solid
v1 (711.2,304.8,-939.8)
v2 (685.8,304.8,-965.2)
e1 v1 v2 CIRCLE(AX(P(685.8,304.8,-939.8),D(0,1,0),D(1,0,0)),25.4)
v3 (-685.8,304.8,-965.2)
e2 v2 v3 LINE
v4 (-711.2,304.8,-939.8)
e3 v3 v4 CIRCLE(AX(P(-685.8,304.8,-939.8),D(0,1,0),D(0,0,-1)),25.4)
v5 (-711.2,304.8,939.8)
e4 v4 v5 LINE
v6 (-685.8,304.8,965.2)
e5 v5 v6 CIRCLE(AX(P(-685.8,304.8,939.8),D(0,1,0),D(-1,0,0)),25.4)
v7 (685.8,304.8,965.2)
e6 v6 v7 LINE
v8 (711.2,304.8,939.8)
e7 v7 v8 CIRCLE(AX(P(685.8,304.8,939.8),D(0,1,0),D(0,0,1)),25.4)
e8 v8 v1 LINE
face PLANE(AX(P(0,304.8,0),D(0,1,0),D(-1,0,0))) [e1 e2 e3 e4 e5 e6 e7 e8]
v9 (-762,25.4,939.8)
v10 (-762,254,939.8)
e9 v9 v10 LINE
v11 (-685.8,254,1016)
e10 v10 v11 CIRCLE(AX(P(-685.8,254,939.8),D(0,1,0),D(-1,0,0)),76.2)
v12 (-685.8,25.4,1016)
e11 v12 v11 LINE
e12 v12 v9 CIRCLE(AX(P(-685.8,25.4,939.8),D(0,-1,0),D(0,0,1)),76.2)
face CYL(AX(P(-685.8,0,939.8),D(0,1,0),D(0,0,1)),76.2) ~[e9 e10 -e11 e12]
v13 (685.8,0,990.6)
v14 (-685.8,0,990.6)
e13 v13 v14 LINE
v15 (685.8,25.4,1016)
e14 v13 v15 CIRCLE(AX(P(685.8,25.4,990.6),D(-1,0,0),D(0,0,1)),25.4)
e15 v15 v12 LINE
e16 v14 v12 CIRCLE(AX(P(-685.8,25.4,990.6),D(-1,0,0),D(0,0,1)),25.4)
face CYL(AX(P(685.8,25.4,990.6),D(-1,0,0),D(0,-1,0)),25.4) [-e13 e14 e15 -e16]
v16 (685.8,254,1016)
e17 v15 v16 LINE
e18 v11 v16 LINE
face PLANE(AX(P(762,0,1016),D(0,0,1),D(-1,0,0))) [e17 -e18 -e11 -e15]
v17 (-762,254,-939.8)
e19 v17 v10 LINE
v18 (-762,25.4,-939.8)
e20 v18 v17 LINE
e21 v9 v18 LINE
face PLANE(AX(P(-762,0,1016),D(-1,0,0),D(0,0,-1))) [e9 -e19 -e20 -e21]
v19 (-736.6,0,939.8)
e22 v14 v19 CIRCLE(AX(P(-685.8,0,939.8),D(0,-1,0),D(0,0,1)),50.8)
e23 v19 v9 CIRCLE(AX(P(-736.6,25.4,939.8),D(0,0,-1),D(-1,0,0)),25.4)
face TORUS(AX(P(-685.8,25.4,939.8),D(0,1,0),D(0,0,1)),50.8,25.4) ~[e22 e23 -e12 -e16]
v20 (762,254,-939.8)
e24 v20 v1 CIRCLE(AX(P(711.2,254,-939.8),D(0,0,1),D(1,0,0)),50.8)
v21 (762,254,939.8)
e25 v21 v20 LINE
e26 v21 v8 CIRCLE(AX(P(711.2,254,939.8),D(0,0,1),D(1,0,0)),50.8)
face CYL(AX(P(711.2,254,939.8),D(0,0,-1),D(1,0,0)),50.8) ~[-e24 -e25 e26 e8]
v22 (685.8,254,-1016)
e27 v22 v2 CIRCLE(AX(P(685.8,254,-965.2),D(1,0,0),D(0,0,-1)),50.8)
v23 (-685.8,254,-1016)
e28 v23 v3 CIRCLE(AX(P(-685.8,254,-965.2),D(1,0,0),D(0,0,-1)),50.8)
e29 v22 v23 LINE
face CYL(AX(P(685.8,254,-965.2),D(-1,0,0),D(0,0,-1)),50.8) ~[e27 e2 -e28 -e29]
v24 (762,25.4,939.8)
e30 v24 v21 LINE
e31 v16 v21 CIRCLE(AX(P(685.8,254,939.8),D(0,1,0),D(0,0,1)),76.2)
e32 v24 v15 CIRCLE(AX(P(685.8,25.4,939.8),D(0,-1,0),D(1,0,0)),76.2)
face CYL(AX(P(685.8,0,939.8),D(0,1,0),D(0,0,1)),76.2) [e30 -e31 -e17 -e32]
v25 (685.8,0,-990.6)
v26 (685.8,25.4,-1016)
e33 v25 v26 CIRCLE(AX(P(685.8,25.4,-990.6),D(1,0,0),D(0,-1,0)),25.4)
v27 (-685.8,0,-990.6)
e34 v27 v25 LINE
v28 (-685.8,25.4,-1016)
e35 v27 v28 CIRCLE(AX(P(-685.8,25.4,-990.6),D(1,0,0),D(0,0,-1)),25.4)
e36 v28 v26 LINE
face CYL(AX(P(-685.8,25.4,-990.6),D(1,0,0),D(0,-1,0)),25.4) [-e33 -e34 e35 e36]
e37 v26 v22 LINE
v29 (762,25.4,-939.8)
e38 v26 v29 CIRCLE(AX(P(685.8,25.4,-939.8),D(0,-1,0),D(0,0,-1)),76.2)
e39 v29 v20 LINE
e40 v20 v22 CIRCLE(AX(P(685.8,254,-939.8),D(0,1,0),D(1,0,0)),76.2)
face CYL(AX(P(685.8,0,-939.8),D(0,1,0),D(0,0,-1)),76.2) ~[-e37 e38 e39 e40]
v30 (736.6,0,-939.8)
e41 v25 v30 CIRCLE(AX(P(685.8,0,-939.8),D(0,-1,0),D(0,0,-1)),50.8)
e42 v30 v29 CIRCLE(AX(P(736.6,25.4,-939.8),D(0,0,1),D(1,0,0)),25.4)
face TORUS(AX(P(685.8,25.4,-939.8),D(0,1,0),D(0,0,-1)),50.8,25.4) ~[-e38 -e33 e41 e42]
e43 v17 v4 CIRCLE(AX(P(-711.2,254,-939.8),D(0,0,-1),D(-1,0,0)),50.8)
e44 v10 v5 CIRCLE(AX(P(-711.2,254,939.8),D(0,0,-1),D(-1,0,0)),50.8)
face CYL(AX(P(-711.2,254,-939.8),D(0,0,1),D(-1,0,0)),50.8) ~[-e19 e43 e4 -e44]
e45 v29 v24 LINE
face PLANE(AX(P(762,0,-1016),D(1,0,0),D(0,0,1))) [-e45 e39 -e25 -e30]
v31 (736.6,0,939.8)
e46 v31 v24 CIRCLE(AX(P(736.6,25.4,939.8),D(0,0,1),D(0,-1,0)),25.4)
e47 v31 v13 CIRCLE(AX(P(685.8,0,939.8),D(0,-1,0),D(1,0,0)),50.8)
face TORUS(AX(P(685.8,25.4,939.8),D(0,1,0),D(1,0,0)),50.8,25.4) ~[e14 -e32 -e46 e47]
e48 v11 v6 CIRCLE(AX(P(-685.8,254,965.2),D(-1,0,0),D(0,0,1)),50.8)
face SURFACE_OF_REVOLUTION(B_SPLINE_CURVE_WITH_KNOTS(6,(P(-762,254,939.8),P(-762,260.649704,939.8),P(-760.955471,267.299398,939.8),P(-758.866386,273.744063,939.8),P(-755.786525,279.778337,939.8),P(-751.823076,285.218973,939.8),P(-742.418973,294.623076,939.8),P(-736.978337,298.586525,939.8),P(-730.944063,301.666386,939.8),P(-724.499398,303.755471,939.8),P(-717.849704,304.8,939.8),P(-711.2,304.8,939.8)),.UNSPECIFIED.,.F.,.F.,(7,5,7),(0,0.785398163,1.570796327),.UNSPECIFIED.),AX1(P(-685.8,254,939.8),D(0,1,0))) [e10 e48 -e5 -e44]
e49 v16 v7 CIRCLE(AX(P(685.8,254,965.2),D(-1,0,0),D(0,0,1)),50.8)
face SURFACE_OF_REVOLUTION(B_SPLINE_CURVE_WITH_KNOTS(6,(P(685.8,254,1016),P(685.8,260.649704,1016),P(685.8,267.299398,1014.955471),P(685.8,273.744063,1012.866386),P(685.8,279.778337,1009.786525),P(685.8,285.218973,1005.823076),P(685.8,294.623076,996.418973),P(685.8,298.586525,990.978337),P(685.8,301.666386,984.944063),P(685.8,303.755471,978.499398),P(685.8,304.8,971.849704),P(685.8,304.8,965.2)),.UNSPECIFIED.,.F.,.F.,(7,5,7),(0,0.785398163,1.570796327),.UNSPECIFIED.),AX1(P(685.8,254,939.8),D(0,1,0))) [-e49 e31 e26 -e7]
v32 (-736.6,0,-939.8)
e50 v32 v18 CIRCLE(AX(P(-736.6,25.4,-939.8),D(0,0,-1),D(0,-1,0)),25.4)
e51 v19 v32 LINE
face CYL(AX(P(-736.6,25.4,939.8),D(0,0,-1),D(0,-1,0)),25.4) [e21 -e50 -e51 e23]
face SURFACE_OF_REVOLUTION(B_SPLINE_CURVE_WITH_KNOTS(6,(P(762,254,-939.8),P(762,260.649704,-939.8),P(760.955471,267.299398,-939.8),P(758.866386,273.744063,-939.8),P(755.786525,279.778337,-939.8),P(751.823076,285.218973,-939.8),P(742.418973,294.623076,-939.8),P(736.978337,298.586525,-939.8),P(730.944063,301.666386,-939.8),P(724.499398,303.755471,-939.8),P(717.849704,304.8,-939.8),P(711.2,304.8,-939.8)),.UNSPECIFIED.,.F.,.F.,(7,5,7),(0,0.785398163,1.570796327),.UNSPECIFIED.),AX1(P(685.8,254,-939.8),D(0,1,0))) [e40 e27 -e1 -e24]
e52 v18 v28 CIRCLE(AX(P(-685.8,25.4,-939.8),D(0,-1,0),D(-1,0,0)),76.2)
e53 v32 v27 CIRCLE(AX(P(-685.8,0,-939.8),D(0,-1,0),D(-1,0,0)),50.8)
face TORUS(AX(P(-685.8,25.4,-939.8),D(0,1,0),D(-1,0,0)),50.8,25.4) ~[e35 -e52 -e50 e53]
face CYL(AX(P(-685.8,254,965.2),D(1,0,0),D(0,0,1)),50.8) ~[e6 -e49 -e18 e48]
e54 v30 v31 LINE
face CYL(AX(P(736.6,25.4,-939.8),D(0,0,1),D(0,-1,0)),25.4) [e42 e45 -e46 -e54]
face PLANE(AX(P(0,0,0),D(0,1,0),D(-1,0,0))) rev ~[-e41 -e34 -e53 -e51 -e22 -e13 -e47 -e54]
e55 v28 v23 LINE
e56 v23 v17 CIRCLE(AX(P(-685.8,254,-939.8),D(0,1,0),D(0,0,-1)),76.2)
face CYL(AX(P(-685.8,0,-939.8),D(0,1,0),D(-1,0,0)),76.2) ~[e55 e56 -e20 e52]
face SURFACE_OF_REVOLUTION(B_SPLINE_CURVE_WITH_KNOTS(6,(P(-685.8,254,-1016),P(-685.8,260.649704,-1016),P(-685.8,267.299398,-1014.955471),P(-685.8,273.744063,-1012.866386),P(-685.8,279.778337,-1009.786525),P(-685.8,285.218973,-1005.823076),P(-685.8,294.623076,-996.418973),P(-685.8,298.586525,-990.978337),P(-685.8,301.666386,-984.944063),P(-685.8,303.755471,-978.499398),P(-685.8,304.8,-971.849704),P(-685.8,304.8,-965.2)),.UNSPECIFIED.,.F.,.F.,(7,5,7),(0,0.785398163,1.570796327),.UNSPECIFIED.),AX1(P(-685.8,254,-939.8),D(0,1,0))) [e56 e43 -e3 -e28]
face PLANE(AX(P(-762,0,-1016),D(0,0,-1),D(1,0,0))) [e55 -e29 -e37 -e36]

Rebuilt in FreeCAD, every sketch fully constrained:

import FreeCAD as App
import Part
import Sketcher
from FreeCAD import Vector
Q = App.Units.Quantity


def edges_at(feature, points):
    """Names of the edges that pass closest to the given points."""
    edges = feature.Shape.Edges
    near = lambda p: min(range(len(edges)), key=lambda i: edges[i].distToShape(Part.Vertex(*p))[0])
    return sorted({f"Edge{near(p) + 1}" for p in points})


def add_polygon(sketch, points):
    """Adds a closed chain of lines whose ends are joined by coincident constraints."""
    first, n = sketch.GeometryCount, len(points)
    for a, b in zip(points, points[1:] + points[:1]):
        sketch.addGeometry(Part.LineSegment(App.Vector(*a, 0), App.Vector(*b, 0)), False)
    for i in range(n):
        sketch.addConstraint(Sketcher.Constraint("Coincident", first + i, 2, first + (i + 1) % n, 1))

doc = App.newDocument("Part")
body = doc.addObject("PartDesign::Body", "Body")

sketch1 = body.newObject("Sketcher::SketchObject", "Sketch")
sketch1.AttachmentSupport = (doc.getObject("XZ_Plane"), [""])
sketch1.MapMode = "FlatFace"
add_polygon(sketch1, [(-762, 1016), (762, 1016), (762, -1016), (-762, -1016)])
sketch1.addConstraint(Sketcher.Constraint("Horizontal", 0))
sketch1.addConstraint(Sketcher.Constraint("Vertical", 1))
sketch1.addConstraint(Sketcher.Constraint("Horizontal", 2))
sketch1.addConstraint(Sketcher.Constraint("Vertical", 3))
sketch1.addConstraint(Sketcher.Constraint("Symmetric", 0, 2, 2, 2, -1, 1))
sketch1.addConstraint(Sketcher.Constraint("DistanceX", 0, 1, 0, 2, Q("60 in")))
sketch1.addConstraint(Sketcher.Constraint("DistanceY", 1, 2, 1, 1, Q("80 in")))
pad1 = body.newObject("PartDesign::Pad", "Pad")
pad1.Profile = sketch1
pad1.Length = Q("12 in")
pad1.Reversed = True
doc.recompute()

fillet = body.newObject("PartDesign::Fillet", "Fillet")
fillet.Base = (pad1, edges_at(pad1, [
    (762, 152.4, 1016),
    (762, 152.4, -1016),
    (-762, 152.4, -1016),
    (-762, 152.4, 1016),
]))
fillet.Radius = Q("3 in")
doc.recompute()

fillet2 = body.newObject("PartDesign::Fillet", "Fillet001")
fillet2.Base = (fillet, edges_at(fillet, [
    (739.682, 304.8, 993.682),
    (762, 304.8, 0),
    (739.682, 304.8, -993.682),
    (0, 304.8, -1016),
    (-739.682, 304.8, -993.682),
    (-762, 304.8, 0),
    (-739.682, 304.8, 993.682),
    (0, 304.8, 1016),
]))
fillet2.Radius = Q("2 in")
doc.recompute()

fillet3 = body.newObject("PartDesign::Fillet", "Fillet002")
fillet3.Base = (fillet2, edges_at(fillet2, [
    (-739.682, 0, 993.682),
    (-762, 0, 0),
    (-739.682, 0, -993.682),
    (0, 0, -1016),
    (739.682, 0, -993.682),
    (762, 0, 0),
    (739.682, 0, 993.682),
    (0, 0, 1016),
]))
fillet3.Radius = Q("1 in")

doc.recompute()
